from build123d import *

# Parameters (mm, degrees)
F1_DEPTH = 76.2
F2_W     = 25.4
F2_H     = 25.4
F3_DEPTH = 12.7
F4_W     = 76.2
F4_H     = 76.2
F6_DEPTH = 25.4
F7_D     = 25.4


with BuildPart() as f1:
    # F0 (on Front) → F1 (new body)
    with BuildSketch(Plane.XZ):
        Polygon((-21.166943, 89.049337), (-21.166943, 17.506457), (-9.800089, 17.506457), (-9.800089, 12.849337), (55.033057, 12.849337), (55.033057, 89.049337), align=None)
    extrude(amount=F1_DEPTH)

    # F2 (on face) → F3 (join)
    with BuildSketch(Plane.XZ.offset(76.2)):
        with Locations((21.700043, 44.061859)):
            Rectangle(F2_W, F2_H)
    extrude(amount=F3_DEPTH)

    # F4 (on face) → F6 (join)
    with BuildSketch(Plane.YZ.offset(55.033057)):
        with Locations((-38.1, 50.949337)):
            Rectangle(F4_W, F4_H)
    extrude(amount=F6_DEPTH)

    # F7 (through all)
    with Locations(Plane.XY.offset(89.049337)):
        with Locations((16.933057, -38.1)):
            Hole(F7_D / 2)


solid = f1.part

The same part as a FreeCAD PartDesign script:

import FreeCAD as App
import Part
import Sketcher

V = App.Vector
Q = App.Units.Quantity

doc = App.newDocument("Part")
body = doc.addObject("PartDesign::Body", "Body")

sketch1 = body.newObject("Sketcher::SketchObject", "Sketch")
sketch1.AttachmentSupport = (doc.getObject("XZ_Plane"), [""])
sketch1.MapMode = "FlatFace"
sketch1.addGeometry(Part.LineSegment(V(-21.2, 89, 0), V(-21.2, 17.5, 0)), False)
sketch1.addGeometry(Part.LineSegment(V(-21.2, 17.5, 0), V(-9.8, 17.5, 0)), False)
sketch1.addGeometry(Part.LineSegment(V(-9.8, 17.5, 0), V(-9.8, 12.8, 0)), False)
sketch1.addGeometry(Part.LineSegment(V(-9.8, 12.8, 0), V(55, 12.8, 0)), False)
sketch1.addGeometry(Part.LineSegment(V(55, 12.8, 0), V(55, 89, 0)), False)
sketch1.addGeometry(Part.LineSegment(V(55, 89, 0), V(-21.2, 89, 0)), False)
sketch1.addConstraint(Sketcher.Constraint("Coincident", 0, 2, 1, 1))
sketch1.addConstraint(Sketcher.Constraint("Coincident", 1, 2, 2, 1))
sketch1.addConstraint(Sketcher.Constraint("Coincident", 2, 2, 3, 1))
sketch1.addConstraint(Sketcher.Constraint("Coincident", 3, 2, 4, 1))
sketch1.addConstraint(Sketcher.Constraint("Coincident", 4, 2, 5, 1))
sketch1.addConstraint(Sketcher.Constraint("Coincident", 5, 2, 0, 1))
sketch1.addConstraint(Sketcher.Constraint("Vertical", 0))
sketch1.addConstraint(Sketcher.Constraint("Horizontal", 1))
sketch1.addConstraint(Sketcher.Constraint("Vertical", 2))
sketch1.addConstraint(Sketcher.Constraint("Horizontal", 3))
sketch1.addConstraint(Sketcher.Constraint("Vertical", 4))
sketch1.addConstraint(Sketcher.Constraint("Horizontal", 5))
sketch1.addConstraint(Sketcher.Constraint("Equal", 5, 4))
sketch1.addConstraint(Sketcher.Constraint("DistanceX", 5, 2, 5, 1, Q("3 in")))
sketch1.addConstraint(Sketcher.Constraint("DistanceY", 0, 2, 0, 1, Q("71.54288 mm")))
sketch1.addConstraint(Sketcher.Constraint("DistanceX", 1, 1, 1, 2, Q("11.366854 mm")))
sketch1.addConstraint(Sketcher.Constraint("DistanceX", 1, 2, -1, 1, Q("9.800089 mm")))
sketch1.addConstraint(Sketcher.Constraint("DistanceY", -1, 1, 0, 2, Q("17.506457 mm")))
pad1 = body.newObject("PartDesign::Pad", "Pad")
pad1.Profile = sketch1
pad1.Length = Q("3 in")

sketch2 = body.newObject("Sketcher::SketchObject", "Sketch001")
sketch2.AttachmentSupport = (doc.getObject("XZ_Plane"), [""])
sketch2.MapMode = "FlatFace"
sketch2.AttachmentOffset = App.Placement(V(0, 0, 3 * 25.4), App.Rotation())
sketch2.addGeometry(Part.LineSegment(V(9, 57, 0), V(9, 31, 0)), False)
sketch2.addGeometry(Part.LineSegment(V(9, 31, 0), V(34, 31, 0)), False)
sketch2.addGeometry(Part.LineSegment(V(34, 31, 0), V(34, 57, 0)), False)
sketch2.addGeometry(Part.LineSegment(V(34, 57, 0), V(9, 57, 0)), False)
sketch2.addConstraint(Sketcher.Constraint("Coincident", 0, 2, 1, 1))
sketch2.addConstraint(Sketcher.Constraint("Coincident", 1, 2, 2, 1))
sketch2.addConstraint(Sketcher.Constraint("Coincident", 2, 2, 3, 1))
sketch2.addConstraint(Sketcher.Constraint("Coincident", 3, 2, 0, 1))
sketch2.addConstraint(Sketcher.Constraint("Vertical", 0))
sketch2.addConstraint(Sketcher.Constraint("Horizontal", 1))
sketch2.addConstraint(Sketcher.Constraint("Vertical", 2))
sketch2.addConstraint(Sketcher.Constraint("Horizontal", 3))
sketch2.addConstraint(Sketcher.Constraint("Equal", 3, 0))
sketch2.addConstraint(Sketcher.Constraint("DistanceX", 1, 1, 1, 2, Q("1 in")))
sketch2.addConstraint(Sketcher.Constraint("DistanceY", -1, 1, 0, 2, Q("31.361859 mm")))
sketch2.addConstraint(Sketcher.Constraint("DistanceX", -1, 1, 0, 2, Q("9.000043 mm")))
pad2 = body.newObject("PartDesign::Pad", "Pad001")
pad2.Profile = sketch2
pad2.Length = Q("0.5 in")

sketch3 = body.newObject("Sketcher::SketchObject", "Sketch002")
sketch3.AttachmentSupport = (doc.getObject("YZ_Plane"), [""])
sketch3.MapMode = "FlatFace"
sketch3.AttachmentOffset = App.Placement(V(0, 0, 55.033057), App.Rotation())
sketch3.addGeometry(Part.LineSegment(V(-76, 89, 0), V(-76, 13, 0)), False)
sketch3.addGeometry(Part.LineSegment(V(-76, 13, 0), V(0, 13, 0)), False)
sketch3.addGeometry(Part.LineSegment(V(0, 13, 0), V(0, 89, 0)), False)
sketch3.addGeometry(Part.LineSegment(V(0, 89, 0), V(-76, 89, 0)), False)
sketch3.addConstraint(Sketcher.Constraint("Coincident", 0, 2, 1, 1))
sketch3.addConstraint(Sketcher.Constraint("Coincident", 1, 2, 2, 1))
sketch3.addConstraint(Sketcher.Constraint("Coincident", 2, 2, 3, 1))
sketch3.addConstraint(Sketcher.Constraint("Coincident", 3, 2, 0, 1))
sketch3.addConstraint(Sketcher.Constraint("Vertical", 0))
sketch3.addConstraint(Sketcher.Constraint("Horizontal", 1))
sketch3.addConstraint(Sketcher.Constraint("Vertical", 2))
sketch3.addConstraint(Sketcher.Constraint("Horizontal", 3))
sketch3.addConstraint(Sketcher.Constraint("PointOnObject", 1, 2, -2))
sketch3.addConstraint(Sketcher.Constraint("Equal", 3, 0))
sketch3.addConstraint(Sketcher.Constraint("DistanceX", 1, 1, 1, 2, Q("3 in")))
sketch3.addConstraint(Sketcher.Constraint("DistanceY", -1, 1, 0, 2, Q("12.849337 mm")))
pad3 = body.newObject("PartDesign::Pad", "Pad002")
pad3.Profile = sketch3
pad3.Length = Q("1 in")

sketch4 = body.newObject("Sketcher::SketchObject", "Sketch003")
sketch4.AttachmentSupport = (doc.getObject("XY_Plane"), [""])
sketch4.MapMode = "FlatFace"
sketch4.AttachmentOffset = App.Placement(V(0, 0, 89.049337), App.Rotation())
sketch4.addGeometry(Part.Circle(V(17, -38, 0), V(0, 0, 1), 13), False)
sketch4.addConstraint(Sketcher.Constraint("Diameter", 0, Q("1 in")))
sketch4.addConstraint(Sketcher.Constraint("DistanceY", 0, 3, -1, 1, Q("1.5 in")))
sketch4.addConstraint(Sketcher.Constraint("DistanceX", -1, 1, 0, 3, Q("16.933057 mm")))
doc.recompute()
hole = body.newObject("PartDesign::Hole", "Hole")
hole.Profile = sketch4
hole.ThreadType = "None"
hole.Diameter = Q("1 in")
hole.DepthType = "ThroughAll"

doc.recompute()
